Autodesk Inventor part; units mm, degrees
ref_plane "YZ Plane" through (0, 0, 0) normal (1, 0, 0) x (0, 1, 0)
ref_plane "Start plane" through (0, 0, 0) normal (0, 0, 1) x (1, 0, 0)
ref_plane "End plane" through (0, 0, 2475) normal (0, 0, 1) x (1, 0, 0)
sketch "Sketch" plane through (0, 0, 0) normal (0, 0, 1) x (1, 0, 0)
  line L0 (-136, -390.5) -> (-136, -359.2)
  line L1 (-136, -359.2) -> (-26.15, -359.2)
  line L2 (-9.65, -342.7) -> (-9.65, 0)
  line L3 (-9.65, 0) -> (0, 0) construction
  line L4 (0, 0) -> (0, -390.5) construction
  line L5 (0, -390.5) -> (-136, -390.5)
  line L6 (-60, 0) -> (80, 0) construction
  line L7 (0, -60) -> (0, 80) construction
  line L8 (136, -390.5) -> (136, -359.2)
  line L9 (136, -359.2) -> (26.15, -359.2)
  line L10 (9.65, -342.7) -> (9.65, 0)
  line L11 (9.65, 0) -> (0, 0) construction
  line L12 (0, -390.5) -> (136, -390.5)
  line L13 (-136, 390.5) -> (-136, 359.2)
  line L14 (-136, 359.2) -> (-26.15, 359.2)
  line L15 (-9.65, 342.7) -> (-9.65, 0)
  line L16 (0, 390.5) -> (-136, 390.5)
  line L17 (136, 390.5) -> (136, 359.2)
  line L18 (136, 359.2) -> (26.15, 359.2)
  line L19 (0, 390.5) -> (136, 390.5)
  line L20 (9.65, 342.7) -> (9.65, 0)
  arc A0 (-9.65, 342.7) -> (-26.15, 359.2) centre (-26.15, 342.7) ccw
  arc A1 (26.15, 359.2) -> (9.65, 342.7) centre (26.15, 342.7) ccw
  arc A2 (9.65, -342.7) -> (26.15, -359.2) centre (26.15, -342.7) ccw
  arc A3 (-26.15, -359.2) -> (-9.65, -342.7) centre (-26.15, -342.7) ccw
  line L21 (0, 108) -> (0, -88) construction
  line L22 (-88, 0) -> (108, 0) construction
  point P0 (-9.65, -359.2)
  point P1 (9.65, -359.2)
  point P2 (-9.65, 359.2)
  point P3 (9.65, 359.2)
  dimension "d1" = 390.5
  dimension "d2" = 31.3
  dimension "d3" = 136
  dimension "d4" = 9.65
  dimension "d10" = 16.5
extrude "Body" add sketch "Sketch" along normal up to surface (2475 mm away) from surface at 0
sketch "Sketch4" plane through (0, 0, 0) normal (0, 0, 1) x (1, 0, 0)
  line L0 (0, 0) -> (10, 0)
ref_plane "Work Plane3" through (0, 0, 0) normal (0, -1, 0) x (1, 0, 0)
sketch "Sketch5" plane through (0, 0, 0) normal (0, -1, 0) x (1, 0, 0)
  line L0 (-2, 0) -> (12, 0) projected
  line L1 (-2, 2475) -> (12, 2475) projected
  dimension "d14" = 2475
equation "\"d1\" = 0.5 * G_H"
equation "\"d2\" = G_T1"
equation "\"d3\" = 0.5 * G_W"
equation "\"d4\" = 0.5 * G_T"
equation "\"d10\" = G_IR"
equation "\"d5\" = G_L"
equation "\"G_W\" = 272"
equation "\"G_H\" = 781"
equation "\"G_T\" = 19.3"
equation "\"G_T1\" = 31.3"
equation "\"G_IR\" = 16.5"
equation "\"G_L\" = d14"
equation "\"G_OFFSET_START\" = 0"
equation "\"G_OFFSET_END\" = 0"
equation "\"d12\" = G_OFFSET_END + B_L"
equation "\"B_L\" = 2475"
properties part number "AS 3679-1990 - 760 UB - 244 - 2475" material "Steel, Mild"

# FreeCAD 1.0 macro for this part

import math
import FreeCAD as App
import Part
import Sketcher
from FreeCAD import Vector
Q = App.Units.Quantity

doc = App.newDocument("Part")
body = doc.addObject("PartDesign::Body", "Body")

# Sketch on XY plane
sketch1 = doc.addObject("Sketcher::SketchObject", "Sketch")
body.addObject(sketch1)
sketch1.AttachmentSupport = (doc.XY_Plane, [""])
sketch1.MapMode = "FlatFace"
sketch1.addGeometry([
    Part.LineSegment(Vector(-136, -359, 0), Vector(-136, -390, 0)),  # 0
    Part.LineSegment(Vector(-136, -390, 0), Vector(136, -390, 0)),  # 1
    Part.LineSegment(Vector(136, -390, 0), Vector(136, -359, 0)),  # 2
    Part.LineSegment(Vector(136, -359, 0), Vector(26, -359, 0)),  # 3
    Part.ArcOfCircle(Part.Circle(Vector(26, -343, 0), Vector(0, 0, 1), 16), math.radians(180), math.radians(270)),  # 4
    Part.LineSegment(Vector(10, -343, 0), Vector(10, 343, 0)),  # 5
    Part.ArcOfCircle(Part.Circle(Vector(26, 343, 0), Vector(0, 0, 1), 16), math.radians(90), math.radians(180)),  # 6
    Part.LineSegment(Vector(26, 359, 0), Vector(136, 359, 0)),  # 7
    Part.LineSegment(Vector(136, 359, 0), Vector(136, 390, 0)),  # 8
    Part.LineSegment(Vector(136, 390, 0), Vector(-136, 390, 0)),  # 9
    Part.LineSegment(Vector(-136, 390, 0), Vector(-136, 359, 0)),  # 10
    Part.LineSegment(Vector(-136, 359, 0), Vector(-26, 359, 0)),  # 11
    Part.ArcOfCircle(Part.Circle(Vector(-26, 343, 0), Vector(0, 0, 1), 16), math.radians(0), math.radians(90)),  # 12
    Part.LineSegment(Vector(-10, 343, 0), Vector(-10, -343, 0)),  # 13
    Part.ArcOfCircle(Part.Circle(Vector(-26, -343, 0), Vector(0, 0, 1), 16), math.radians(-90), math.radians(0)),  # 14
    Part.LineSegment(Vector(-26, -359, 0), Vector(-136, -359, 0)),  # 15
], False)
sketch1.addConstraint([
    Sketcher.Constraint("Coincident", 0, 2, 1, 1),
    Sketcher.Constraint("Coincident", 1, 2, 2, 1),
    Sketcher.Constraint("Coincident", 2, 2, 3, 1),
    Sketcher.Constraint("Tangent", 3, 2, 4, 2),
    Sketcher.Constraint("Tangent", 4, 1, 5, 1),
    Sketcher.Constraint("Tangent", 5, 2, 6, 2),
    Sketcher.Constraint("Tangent", 6, 1, 7, 1),
    Sketcher.Constraint("Coincident", 7, 2, 8, 1),
    Sketcher.Constraint("Coincident", 8, 2, 9, 1),
    Sketcher.Constraint("Coincident", 9, 2, 10, 1),
    Sketcher.Constraint("Coincident", 10, 2, 11, 1),
    Sketcher.Constraint("Tangent", 11, 2, 12, 2),
    Sketcher.Constraint("Tangent", 12, 1, 13, 1),
    Sketcher.Constraint("Tangent", 13, 2, 14, 2),
    Sketcher.Constraint("Tangent", 14, 1, 15, 1),
    Sketcher.Constraint("Coincident", 15, 2, 0, 1),
    Sketcher.Constraint("Vertical", 0),
    Sketcher.Constraint("Horizontal", 1),
    Sketcher.Constraint("Vertical", 2),
    Sketcher.Constraint("Horizontal", 3),
    Sketcher.Constraint("Vertical", 5),
    Sketcher.Constraint("Horizontal", 7),
    Sketcher.Constraint("Vertical", 8),
    Sketcher.Constraint("Horizontal", 9),
    Sketcher.Constraint("Vertical", 10),
    Sketcher.Constraint("Horizontal", 11),
    Sketcher.Constraint("Vertical", 13),
    Sketcher.Constraint("Horizontal", 15),
    Sketcher.Constraint("Equal", 4, 6),
    Sketcher.Constraint("Equal", 6, 12),
    Sketcher.Constraint("Equal", 12, 14),
    Sketcher.Constraint("Symmetric", 4, 3, 12, 3, -1, 1),
    Sketcher.Constraint("Symmetric", 0, 2, 8, 2, -1, 1),
    Sketcher.Constraint("Symmetric", 7, 2, 10, 2, -2),
    Sketcher.Constraint("Symmetric", 2, 2, 15, 2, -2),
    Sketcher.Constraint("Radius", 4, Q("16.5 mm")),
    Sketcher.Constraint("DistanceY", 0, 2, 0, 1, Q("31.3 mm")),
    Sketcher.Constraint("DistanceX", 0, 2, -1, 1, Q("136 mm")),
    Sketcher.Constraint("DistanceY", 0, 2, -1, 1, Q("390.5 mm")),
    Sketcher.Constraint("DistanceX", -1, 1, 4, 1, Q("9.65 mm")),
])
pad1 = doc.addObject("PartDesign::Pad", "Pad")
body.addObject(pad1)
pad1.Profile = sketch1
pad1.Length = 2475

doc.recompute()
